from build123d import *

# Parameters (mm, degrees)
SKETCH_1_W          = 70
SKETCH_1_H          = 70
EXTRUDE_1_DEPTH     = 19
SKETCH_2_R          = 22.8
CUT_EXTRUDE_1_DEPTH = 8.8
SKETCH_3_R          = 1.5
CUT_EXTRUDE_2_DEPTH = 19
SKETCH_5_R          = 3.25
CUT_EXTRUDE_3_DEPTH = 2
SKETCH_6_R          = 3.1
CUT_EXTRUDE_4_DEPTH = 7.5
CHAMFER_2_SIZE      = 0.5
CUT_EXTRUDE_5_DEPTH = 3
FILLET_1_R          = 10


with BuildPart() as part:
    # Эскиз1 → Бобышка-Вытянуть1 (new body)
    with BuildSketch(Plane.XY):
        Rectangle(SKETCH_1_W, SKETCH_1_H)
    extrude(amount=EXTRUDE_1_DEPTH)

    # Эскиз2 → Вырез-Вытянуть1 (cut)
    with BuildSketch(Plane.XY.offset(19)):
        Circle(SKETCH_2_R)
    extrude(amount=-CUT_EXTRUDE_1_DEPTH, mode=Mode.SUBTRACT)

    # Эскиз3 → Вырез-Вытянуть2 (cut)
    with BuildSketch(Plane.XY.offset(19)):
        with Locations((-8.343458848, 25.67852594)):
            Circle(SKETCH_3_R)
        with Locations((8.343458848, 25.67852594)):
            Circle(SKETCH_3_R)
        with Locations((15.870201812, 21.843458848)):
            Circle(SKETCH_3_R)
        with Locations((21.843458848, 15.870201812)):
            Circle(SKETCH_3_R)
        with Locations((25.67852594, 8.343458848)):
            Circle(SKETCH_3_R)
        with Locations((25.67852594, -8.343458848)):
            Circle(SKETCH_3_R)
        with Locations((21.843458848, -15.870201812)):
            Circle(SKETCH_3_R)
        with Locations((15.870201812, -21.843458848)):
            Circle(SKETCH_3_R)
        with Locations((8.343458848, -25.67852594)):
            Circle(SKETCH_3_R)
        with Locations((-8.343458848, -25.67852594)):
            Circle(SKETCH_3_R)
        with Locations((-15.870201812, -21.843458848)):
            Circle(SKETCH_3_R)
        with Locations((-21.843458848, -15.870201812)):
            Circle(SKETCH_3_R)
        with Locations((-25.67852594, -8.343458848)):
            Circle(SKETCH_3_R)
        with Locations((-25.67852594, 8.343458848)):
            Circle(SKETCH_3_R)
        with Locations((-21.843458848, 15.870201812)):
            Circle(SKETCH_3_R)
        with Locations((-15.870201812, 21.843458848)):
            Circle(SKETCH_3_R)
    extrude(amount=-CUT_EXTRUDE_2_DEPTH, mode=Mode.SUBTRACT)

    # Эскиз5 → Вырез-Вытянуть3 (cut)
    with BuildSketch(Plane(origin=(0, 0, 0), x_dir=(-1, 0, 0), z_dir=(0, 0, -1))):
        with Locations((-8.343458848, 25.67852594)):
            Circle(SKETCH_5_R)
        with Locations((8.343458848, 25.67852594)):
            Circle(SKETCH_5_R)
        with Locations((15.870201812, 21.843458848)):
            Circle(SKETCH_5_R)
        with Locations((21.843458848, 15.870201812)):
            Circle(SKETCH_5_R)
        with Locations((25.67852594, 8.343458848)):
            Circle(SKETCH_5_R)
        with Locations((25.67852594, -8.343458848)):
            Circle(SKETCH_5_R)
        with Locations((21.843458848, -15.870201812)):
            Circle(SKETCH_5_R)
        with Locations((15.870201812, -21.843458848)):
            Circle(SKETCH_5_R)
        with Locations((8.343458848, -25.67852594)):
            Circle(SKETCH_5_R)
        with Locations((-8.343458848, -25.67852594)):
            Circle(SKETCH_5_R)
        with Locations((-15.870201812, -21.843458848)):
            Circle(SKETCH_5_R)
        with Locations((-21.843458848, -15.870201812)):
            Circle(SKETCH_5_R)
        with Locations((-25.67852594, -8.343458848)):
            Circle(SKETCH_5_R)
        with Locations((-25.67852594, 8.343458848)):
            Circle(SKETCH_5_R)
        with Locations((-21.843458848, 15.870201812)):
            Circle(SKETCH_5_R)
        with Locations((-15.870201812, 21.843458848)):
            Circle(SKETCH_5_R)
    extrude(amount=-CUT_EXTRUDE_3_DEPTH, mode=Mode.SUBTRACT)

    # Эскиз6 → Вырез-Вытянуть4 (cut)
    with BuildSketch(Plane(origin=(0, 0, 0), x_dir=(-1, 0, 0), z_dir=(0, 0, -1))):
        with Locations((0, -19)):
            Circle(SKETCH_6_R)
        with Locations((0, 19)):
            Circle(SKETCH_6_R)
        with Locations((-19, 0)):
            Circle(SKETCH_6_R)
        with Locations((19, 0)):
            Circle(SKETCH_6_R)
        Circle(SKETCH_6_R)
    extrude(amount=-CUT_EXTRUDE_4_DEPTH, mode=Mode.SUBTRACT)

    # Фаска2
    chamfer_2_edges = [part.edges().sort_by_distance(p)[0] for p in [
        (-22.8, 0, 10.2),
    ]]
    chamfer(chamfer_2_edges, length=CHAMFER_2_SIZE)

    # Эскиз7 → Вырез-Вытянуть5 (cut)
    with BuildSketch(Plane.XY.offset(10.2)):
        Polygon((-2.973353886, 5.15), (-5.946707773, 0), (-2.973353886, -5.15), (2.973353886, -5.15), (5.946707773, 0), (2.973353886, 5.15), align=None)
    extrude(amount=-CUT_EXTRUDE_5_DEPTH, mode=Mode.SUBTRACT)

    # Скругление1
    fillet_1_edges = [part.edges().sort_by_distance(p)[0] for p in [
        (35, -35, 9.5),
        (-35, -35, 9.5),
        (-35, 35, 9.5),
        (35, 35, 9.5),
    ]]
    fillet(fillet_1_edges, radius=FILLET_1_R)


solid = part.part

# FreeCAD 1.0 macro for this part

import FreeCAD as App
import Part
import Sketcher

V = App.Vector
Q = App.Units.Quantity


def edges_at(feature, points):
    """Names of the edges that pass closest to the given points."""
    edges = feature.Shape.Edges
    near = lambda p: min(range(len(edges)), key=lambda i: edges[i].distToShape(Part.Vertex(*p))[0])
    return sorted({f"Edge{near(p) + 1}" for p in points})


def add_polygon(sketch, points):
    """Adds a closed chain of lines whose ends are joined by coincident constraints."""
    first, n = sketch.GeometryCount, len(points)
    for a, b in zip(points, points[1:] + points[:1]):
        sketch.addGeometry(Part.LineSegment(App.Vector(*a, 0), App.Vector(*b, 0)), False)
    for i in range(n):
        sketch.addConstraint(Sketcher.Constraint("Coincident", first + i, 2, first + (i + 1) % n, 1))

doc = App.newDocument("Part")
params = doc.addObject("Spreadsheet::Sheet", "Params")
for row, (alias, value) in enumerate([
    ("sketch1_width", "70 mm"),
    ("pad1_length", "19 mm"),
    ("sketch2_diameter", "45.6 mm"),
    ("pocket1_length", "8.8 mm"),
    ("sketch3_diameter", "3 mm"),
    ("pocket2_length", "19 mm"),
    ("sketch4_diameter", "6.5 mm"),
    ("pocket3_length", "2 mm"),
    ("sketch5_diameter", "6.2 mm"),
    ("pocket4_length", "7.5 mm"),
    ("chamfer_size", "0.5 mm"),
    ("pocket5_length", "3 mm"),
    ("fillet_radius", "10 mm"),
], start=1):
    params.set(f"A{row}", alias)
    params.set(f"B{row}", "=" + value)
    params.setAlias(f"B{row}", alias)

body = doc.addObject("PartDesign::Body", "Body")

sketch1 = body.newObject("Sketcher::SketchObject", "Sketch")
sketch1.AttachmentSupport = (doc.getObject("XY_Plane"), [""])
sketch1.MapMode = "FlatFace"
add_polygon(sketch1, [(-35, 35), (-35, -35), (35, -35), (35, 35)])
sketch1.addConstraint([
    Sketcher.Constraint("Vertical", 0),
    Sketcher.Constraint("Horizontal", 1),
    Sketcher.Constraint("Vertical", 2),
    Sketcher.Constraint("Horizontal", 3),
    Sketcher.Constraint("Symmetric", 0, 2, 2, 2, -1, 1),
    Sketcher.Constraint("Equal", 3, 0),
    Sketcher.Constraint("DistanceX", 1, 1, 1, 2, 70.0),
])
sketch1.setExpression("Constraints[10]", "Params.sketch1_width")
pad1 = body.newObject("PartDesign::Pad", "Pad")
pad1.Profile = sketch1
pad1.setExpression("Length", "Params.pad1_length")

sketch2 = body.newObject("Sketcher::SketchObject", "Sketch001")
sketch2.AttachmentSupport = (doc.getObject("XY_Plane"), [""])
sketch2.MapMode = "FlatFace"
sketch2.AttachmentOffset = App.Placement(V(0, 0, 19), App.Rotation())
sketch2.addGeometry(Part.Circle(V(0, 0, 0), V(0, 0, 1), 23), False)
sketch2.addConstraint([
    Sketcher.Constraint("Coincident", 0, 3, -1, 1),
    Sketcher.Constraint("Diameter", 0, 45.6),
])
sketch2.setExpression("Constraints[1]", "Params.sketch2_diameter")
pocket1 = body.newObject("PartDesign::Pocket", "Pocket")
pocket1.Profile = sketch2
pocket1.setExpression("Length", "Params.pocket1_length")

sketch3 = body.newObject("Sketcher::SketchObject", "Sketch002")
sketch3.AttachmentSupport = (doc.getObject("XY_Plane"), [""])
sketch3.MapMode = "FlatFace"
sketch3.AttachmentOffset = App.Placement(V(0, 0, 19), App.Rotation())
sketch3.addGeometry([
    Part.Circle(V(-8.3, 25.7, 0), V(0, 0, 1), 1.5),
    Part.Circle(V(8.3, 25.7, 0), V(0, 0, 1), 1.5),
    Part.Circle(V(15.9, 21.8, 0), V(0, 0, 1), 1.5),
    Part.Circle(V(21.8, 15.9, 0), V(0, 0, 1), 1.5),
    Part.Circle(V(25.7, 8.3, 0), V(0, 0, 1), 1.5),
    Part.Circle(V(25.7, -8.3, 0), V(0, 0, 1), 1.5),
    Part.Circle(V(21.8, -15.9, 0), V(0, 0, 1), 1.5),
    Part.Circle(V(15.9, -21.8, 0), V(0, 0, 1), 1.5),
    Part.Circle(V(8.3, -25.7, 0), V(0, 0, 1), 1.5),
    Part.Circle(V(-8.3, -25.7, 0), V(0, 0, 1), 1.5),
    Part.Circle(V(-15.9, -21.8, 0), V(0, 0, 1), 1.5),
    Part.Circle(V(-21.8, -15.9, 0), V(0, 0, 1), 1.5),
    Part.Circle(V(-25.7, -8.3, 0), V(0, 0, 1), 1.5),
    Part.Circle(V(-25.7, 8.3, 0), V(0, 0, 1), 1.5),
    Part.Circle(V(-21.8, 15.9, 0), V(0, 0, 1), 1.5),
    Part.Circle(V(-15.9, 21.8, 0), V(0, 0, 1), 1.5),
], False)
sketch3.addConstraint([
    Sketcher.Constraint("Equal", 0, 1),
    Sketcher.Constraint("Equal", 1, 2),
    Sketcher.Constraint("Equal", 2, 3),
    Sketcher.Constraint("Equal", 3, 4),
    Sketcher.Constraint("Equal", 4, 5),
    Sketcher.Constraint("Equal", 5, 6),
    Sketcher.Constraint("Equal", 6, 7),
    Sketcher.Constraint("Equal", 7, 8),
    Sketcher.Constraint("Equal", 8, 9),
    Sketcher.Constraint("Equal", 9, 10),
    Sketcher.Constraint("Equal", 10, 11),
    Sketcher.Constraint("Equal", 11, 12),
    Sketcher.Constraint("Equal", 12, 13),
    Sketcher.Constraint("Equal", 13, 14),
    Sketcher.Constraint("Equal", 14, 15),
    Sketcher.Constraint("Symmetric", 0, 3, 8, 3, -1, 1),
    Sketcher.Constraint("Symmetric", 1, 3, 9, 3, -1, 1),
    Sketcher.Constraint("Symmetric", 2, 3, 10, 3, -1, 1),
    Sketcher.Constraint("Symmetric", 3, 3, 11, 3, -1, 1),
    Sketcher.Constraint("Symmetric", 4, 3, 12, 3, -1, 1),
    Sketcher.Constraint("Symmetric", 5, 3, 13, 3, -1, 1),
    Sketcher.Constraint("Symmetric", 6, 3, 14, 3, -1, 1),
    Sketcher.Constraint("Symmetric", 7, 3, 15, 3, -1, 1),
    Sketcher.Constraint("Symmetric", 0, 3, 1, 3, -2),
    Sketcher.Constraint("Symmetric", 7, 3, 10, 3, -2),
    Sketcher.Constraint("Symmetric", 6, 3, 11, 3, -2),
    Sketcher.Constraint("Symmetric", 5, 3, 12, 3, -2),
    Sketcher.Constraint("Diameter", 0, 3.0),
    Sketcher.Constraint("DistanceX", 1, 3, 3, 3, 13.5),
    Sketcher.Constraint("DistanceY", 4, 3, 2, 3, 13.5),
    Sketcher.Constraint("DistanceX", -1, 1, 2, 3, 15.870202),
    Sketcher.Constraint("DistanceY", -1, 1, 3, 3, 15.870202),
    Sketcher.Constraint("DistanceX", 0, 3, -1, 1, 8.343459),
    Sketcher.Constraint("DistanceY", -1, 1, 2, 3, 21.843459),
    Sketcher.Constraint("DistanceY", -1, 1, 0, 3, 25.678526),
    Sketcher.Constraint("DistanceX", -1, 1, 4, 3, 25.678526),
])
sketch3.setExpression("Constraints[27]", "Params.sketch3_diameter")
pocket2 = body.newObject("PartDesign::Pocket", "Pocket001")
pocket2.Profile = sketch3
pocket2.setExpression("Length", "Params.pocket2_length")

sketch4 = body.newObject("Sketcher::SketchObject", "Sketch003")
sketch4.AttachmentSupport = (doc.getObject("XY_Plane"), [""])
sketch4.MapMode = "FlatFace"
sketch4.addGeometry([
    Part.Circle(V(8.3, 25.7, 0), V(0, 0, 1), 3.2),
    Part.Circle(V(-8.3, 25.7, 0), V(0, 0, 1), 3.2),
    Part.Circle(V(-15.9, 21.8, 0), V(0, 0, 1), 3.2),
    Part.Circle(V(-21.8, 15.9, 0), V(0, 0, 1), 3.2),
    Part.Circle(V(-25.7, 8.3, 0), V(0, 0, 1), 3.2),
    Part.Circle(V(-25.7, -8.3, 0), V(0, 0, 1), 3.2),
    Part.Circle(V(-21.8, -15.9, 0), V(0, 0, 1), 3.2),
    Part.Circle(V(-15.9, -21.8, 0), V(0, 0, 1), 3.2),
    Part.Circle(V(-8.3, -25.7, 0), V(0, 0, 1), 3.2),
    Part.Circle(V(8.3, -25.7, 0), V(0, 0, 1), 3.2),
    Part.Circle(V(15.9, -21.8, 0), V(0, 0, 1), 3.2),
    Part.Circle(V(21.8, -15.9, 0), V(0, 0, 1), 3.2),
    Part.Circle(V(25.7, -8.3, 0), V(0, 0, 1), 3.2),
    Part.Circle(V(25.7, 8.3, 0), V(0, 0, 1), 3.2),
    Part.Circle(V(21.8, 15.9, 0), V(0, 0, 1), 3.2),
    Part.Circle(V(15.9, 21.8, 0), V(0, 0, 1), 3.2),
], False)
sketch4.addConstraint([
    Sketcher.Constraint("Equal", 0, 1),
    Sketcher.Constraint("Equal", 1, 2),
    Sketcher.Constraint("Equal", 2, 3),
    Sketcher.Constraint("Equal", 3, 4),
    Sketcher.Constraint("Equal", 4, 5),
    Sketcher.Constraint("Equal", 5, 6),
    Sketcher.Constraint("Equal", 6, 7),
    Sketcher.Constraint("Equal", 7, 8),
    Sketcher.Constraint("Equal", 8, 9),
    Sketcher.Constraint("Equal", 9, 10),
    Sketcher.Constraint("Equal", 10, 11),
    Sketcher.Constraint("Equal", 11, 12),
    Sketcher.Constraint("Equal", 12, 13),
    Sketcher.Constraint("Equal", 13, 14),
    Sketcher.Constraint("Equal", 14, 15),
    Sketcher.Constraint("Symmetric", 0, 3, 8, 3, -1, 1),
    Sketcher.Constraint("Symmetric", 1, 3, 9, 3, -1, 1),
    Sketcher.Constraint("Symmetric", 2, 3, 10, 3, -1, 1),
    Sketcher.Constraint("Symmetric", 3, 3, 11, 3, -1, 1),
    Sketcher.Constraint("Symmetric", 4, 3, 12, 3, -1, 1),
    Sketcher.Constraint("Symmetric", 5, 3, 13, 3, -1, 1),
    Sketcher.Constraint("Symmetric", 6, 3, 14, 3, -1, 1),
    Sketcher.Constraint("Symmetric", 7, 3, 15, 3, -1, 1),
    Sketcher.Constraint("Symmetric", 0, 3, 1, 3, -2),
    Sketcher.Constraint("Symmetric", 7, 3, 10, 3, -2),
    Sketcher.Constraint("Symmetric", 6, 3, 11, 3, -2),
    Sketcher.Constraint("Symmetric", 5, 3, 12, 3, -2),
    Sketcher.Constraint("Diameter", 0, 6.5),
    Sketcher.Constraint("DistanceX", 3, 3, 1, 3, 13.5),
    Sketcher.Constraint("DistanceY", 4, 3, 2, 3, 13.5),
    Sketcher.Constraint("DistanceX", 2, 3, -1, 1, 15.870202),
    Sketcher.Constraint("DistanceY", -1, 1, 3, 3, 15.870202),
    Sketcher.Constraint("DistanceX", -1, 1, 0, 3, 8.343459),
    Sketcher.Constraint("DistanceY", -1, 1, 2, 3, 21.843459),
    Sketcher.Constraint("DistanceY", -1, 1, 0, 3, 25.678526),
    Sketcher.Constraint("DistanceX", 4, 3, -1, 1, 25.678526),
])
sketch4.setExpression("Constraints[27]", "Params.sketch4_diameter")
pocket3 = body.newObject("PartDesign::Pocket", "Pocket002")
pocket3.Profile = sketch4
pocket3.setExpression("Length", "Params.pocket3_length")
pocket3.Reversed = True

sketch5 = body.newObject("Sketcher::SketchObject", "Sketch004")
sketch5.AttachmentSupport = (doc.getObject("XY_Plane"), [""])
sketch5.MapMode = "FlatFace"
sketch5.addGeometry([
    Part.Circle(V(0, -19, 0), V(0, 0, 1), 3.1),
    Part.Circle(V(0, 19, 0), V(0, 0, 1), 3.1),
    Part.Circle(V(19, 0, 0), V(0, 0, 1), 3.1),
    Part.Circle(V(-19, 0, 0), V(0, 0, 1), 3.1),
    Part.Circle(V(0, 0, 0), V(0, 0, 1), 3.1),
], False)
sketch5.addConstraint([
    Sketcher.Constraint("Coincident", 4, 3, -1, 1),
    Sketcher.Constraint("Equal", 0, 1),
    Sketcher.Constraint("Equal", 1, 2),
    Sketcher.Constraint("Equal", 2, 3),
    Sketcher.Constraint("Equal", 3, 4),
    Sketcher.Constraint("Symmetric", 0, 3, 1, 3, -1, 1),
    Sketcher.Constraint("Symmetric", 2, 3, 3, 3, -1, 1),
    Sketcher.Constraint("PointOnObject", 0, 3, -2),
    Sketcher.Constraint("PointOnObject", 2, 3, -1),
    Sketcher.Constraint("Diameter", 0, 6.2),
    Sketcher.Constraint("DistanceY", 0, 3, -1, 1, 19.0),
    Sketcher.Constraint("DistanceX", -1, 1, 2, 3, 19.0),
])
sketch5.setExpression("Constraints[9]", "Params.sketch5_diameter")
pocket4 = body.newObject("PartDesign::Pocket", "Pocket003")
pocket4.Profile = sketch5
pocket4.setExpression("Length", "Params.pocket4_length")
pocket4.Reversed = True
doc.recompute()

chamfer = body.newObject("PartDesign::Chamfer", "Chamfer")
chamfer.Base = (pocket4, edges_at(pocket4, [(-22.8, 0, 10.2)]))
chamfer.setExpression("Size", "Params.chamfer_size")

sketch6 = body.newObject("Sketcher::SketchObject", "Sketch005")
sketch6.AttachmentSupport = (doc.getObject("XY_Plane"), [""])
sketch6.MapMode = "FlatFace"
sketch6.AttachmentOffset = App.Placement(V(0, 0, 10.2), App.Rotation())
add_polygon(sketch6, [(-3, 5), (-6, 0), (-3, -5), (3, -5), (6, 0), (3, 5)])
sketch6.addConstraint([
    Sketcher.Constraint("Horizontal", 2),
    Sketcher.Constraint("Horizontal", 5),
    Sketcher.Constraint("Symmetric", 0, 2, 3, 2, -1, 1),
    Sketcher.Constraint("Symmetric", 1, 2, 4, 2, -1, 1),
    Sketcher.Constraint("PointOnObject", 0, 2, -1),
    Sketcher.Constraint("Parallel", 0, 3),
    Sketcher.Constraint("Vertical", 2, 2, 4, 2),
    Sketcher.Constraint("Angle", 0, Q("-120 deg")),
    Sketcher.Constraint("DistanceY", 2, 2, 4, 2, 10.3),
    Sketcher.Constraint("DistanceX", 2, 1, 2, 2, 5.946708),
])
pocket5 = body.newObject("PartDesign::Pocket", "Pocket004")
pocket5.Profile = sketch6
pocket5.setExpression("Length", "Params.pocket5_length")
doc.recompute()

fillet = body.newObject("PartDesign::Fillet", "Fillet")
fillet.Base = (pocket5, edges_at(pocket5, [
    (35, -35, 9.5),
    (-35, -35, 9.5),
    (-35, 35, 9.5),
    (35, 35, 9.5),
]))
fillet.setExpression("Radius", "Params.fillet_radius")

doc.recompute()
